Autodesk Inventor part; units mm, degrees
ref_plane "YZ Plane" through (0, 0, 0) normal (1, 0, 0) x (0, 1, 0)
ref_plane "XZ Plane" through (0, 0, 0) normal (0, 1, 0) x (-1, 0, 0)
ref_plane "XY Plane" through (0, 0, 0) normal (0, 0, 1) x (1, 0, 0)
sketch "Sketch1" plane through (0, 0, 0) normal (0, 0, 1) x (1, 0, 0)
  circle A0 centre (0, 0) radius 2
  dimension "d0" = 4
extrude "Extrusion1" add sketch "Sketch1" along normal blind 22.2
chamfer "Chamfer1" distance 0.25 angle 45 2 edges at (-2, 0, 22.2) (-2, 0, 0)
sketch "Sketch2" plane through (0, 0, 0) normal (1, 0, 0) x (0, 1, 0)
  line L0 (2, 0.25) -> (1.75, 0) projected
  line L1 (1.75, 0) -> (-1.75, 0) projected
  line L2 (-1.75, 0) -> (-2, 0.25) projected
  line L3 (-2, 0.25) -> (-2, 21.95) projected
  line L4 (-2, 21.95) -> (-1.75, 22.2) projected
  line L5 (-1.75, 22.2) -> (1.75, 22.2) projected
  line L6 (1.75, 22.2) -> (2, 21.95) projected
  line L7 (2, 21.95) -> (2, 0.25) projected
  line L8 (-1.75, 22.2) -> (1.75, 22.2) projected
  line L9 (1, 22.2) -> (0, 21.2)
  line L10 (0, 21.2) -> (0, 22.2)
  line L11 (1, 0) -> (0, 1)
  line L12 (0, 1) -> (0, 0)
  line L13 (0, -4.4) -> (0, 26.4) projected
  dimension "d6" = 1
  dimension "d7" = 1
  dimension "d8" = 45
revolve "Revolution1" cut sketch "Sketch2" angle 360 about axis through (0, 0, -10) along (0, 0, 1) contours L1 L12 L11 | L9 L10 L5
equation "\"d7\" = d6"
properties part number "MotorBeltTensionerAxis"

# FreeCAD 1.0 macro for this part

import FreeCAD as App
import Part
import Sketcher

V = App.Vector
Q = App.Units.Quantity


def edges_at(feature, points):
    """Names of the edges that pass closest to the given points."""
    edges = feature.Shape.Edges
    near = lambda p: min(range(len(edges)), key=lambda i: edges[i].distToShape(Part.Vertex(*p))[0])
    return sorted({f"Edge{near(p) + 1}" for p in points})


def add_polygon(sketch, points):
    """Adds a closed chain of lines whose ends are joined by coincident constraints."""
    first, n = sketch.GeometryCount, len(points)
    for a, b in zip(points, points[1:] + points[:1]):
        sketch.addGeometry(Part.LineSegment(App.Vector(*a, 0), App.Vector(*b, 0)), False)
    for i in range(n):
        sketch.addConstraint(Sketcher.Constraint("Coincident", first + i, 2, first + (i + 1) % n, 1))

doc = App.newDocument("Part")
body = doc.addObject("PartDesign::Body", "Body")

# Sketch on XY plane
sketch1 = body.newObject("Sketcher::SketchObject", "Sketch")
sketch1.AttachmentSupport = (doc.getObject("XY_Plane"), [""])
sketch1.MapMode = "FlatFace"
sketch1.addGeometry(Part.Circle(V(0, 0, 0), V(0, 0, 1), 2), False)
sketch1.addConstraint(Sketcher.Constraint("Coincident", 0, 3, -1, 1))
sketch1.addConstraint(Sketcher.Constraint("Diameter", 0, Q("4 mm")))
pad1 = body.newObject("PartDesign::Pad", "Pad")
pad1.Profile = sketch1
pad1.Length = 22.2
doc.recompute()

chamfer = body.newObject("PartDesign::Chamfer", "Chamfer")
chamfer.Base = (pad1, edges_at(pad1, [(-2, 0, 22.2), (-2, 0, 0)]))
chamfer.Size = 0.25

# Sketch on YZ plane
sketch2 = body.newObject("Sketcher::SketchObject", "Sketch001")
sketch2.AttachmentSupport = (doc.getObject("YZ_Plane"), [""])
sketch2.MapMode = "FlatFace"
add_polygon(sketch2, [(0, 0), (1, 0), (0, 1)])  # lines 0-2
add_polygon(sketch2, [(0, 21.2), (1, 22.2), (0, 22.2)])  # lines 3-5
sketch2.addConstraint(Sketcher.Constraint("Horizontal", 0))
sketch2.addConstraint(Sketcher.Constraint("Vertical", 2))
sketch2.addConstraint(Sketcher.Constraint("Horizontal", 4))
sketch2.addConstraint(Sketcher.Constraint("Vertical", 5))
sketch2.addConstraint(Sketcher.Constraint("Coincident", 2, 2, -1, 1))
sketch2.addConstraint(Sketcher.Constraint("PointOnObject", 4, 2, -2))
sketch2.addConstraint(Sketcher.Constraint("Perpendicular", 1, 3))
sketch2.addConstraint(Sketcher.Constraint("Vertical", 0, 2, 3, 2))
sketch2.addConstraint(Sketcher.Constraint("Equal", 4, 2))
sketch2.addConstraint(Sketcher.Constraint("DistanceX", 0, 1, 0, 2, Q("1 mm")))
sketch2.addConstraint(Sketcher.Constraint("DistanceY", -1, 1, 3, 2, Q("22.2 mm")))
groove = body.newObject("PartDesign::Groove", "Groove")
groove.Profile = sketch2
groove.ReferenceAxis = (sketch2, ["V_Axis"])
groove.Angle = 360

doc.recompute()
